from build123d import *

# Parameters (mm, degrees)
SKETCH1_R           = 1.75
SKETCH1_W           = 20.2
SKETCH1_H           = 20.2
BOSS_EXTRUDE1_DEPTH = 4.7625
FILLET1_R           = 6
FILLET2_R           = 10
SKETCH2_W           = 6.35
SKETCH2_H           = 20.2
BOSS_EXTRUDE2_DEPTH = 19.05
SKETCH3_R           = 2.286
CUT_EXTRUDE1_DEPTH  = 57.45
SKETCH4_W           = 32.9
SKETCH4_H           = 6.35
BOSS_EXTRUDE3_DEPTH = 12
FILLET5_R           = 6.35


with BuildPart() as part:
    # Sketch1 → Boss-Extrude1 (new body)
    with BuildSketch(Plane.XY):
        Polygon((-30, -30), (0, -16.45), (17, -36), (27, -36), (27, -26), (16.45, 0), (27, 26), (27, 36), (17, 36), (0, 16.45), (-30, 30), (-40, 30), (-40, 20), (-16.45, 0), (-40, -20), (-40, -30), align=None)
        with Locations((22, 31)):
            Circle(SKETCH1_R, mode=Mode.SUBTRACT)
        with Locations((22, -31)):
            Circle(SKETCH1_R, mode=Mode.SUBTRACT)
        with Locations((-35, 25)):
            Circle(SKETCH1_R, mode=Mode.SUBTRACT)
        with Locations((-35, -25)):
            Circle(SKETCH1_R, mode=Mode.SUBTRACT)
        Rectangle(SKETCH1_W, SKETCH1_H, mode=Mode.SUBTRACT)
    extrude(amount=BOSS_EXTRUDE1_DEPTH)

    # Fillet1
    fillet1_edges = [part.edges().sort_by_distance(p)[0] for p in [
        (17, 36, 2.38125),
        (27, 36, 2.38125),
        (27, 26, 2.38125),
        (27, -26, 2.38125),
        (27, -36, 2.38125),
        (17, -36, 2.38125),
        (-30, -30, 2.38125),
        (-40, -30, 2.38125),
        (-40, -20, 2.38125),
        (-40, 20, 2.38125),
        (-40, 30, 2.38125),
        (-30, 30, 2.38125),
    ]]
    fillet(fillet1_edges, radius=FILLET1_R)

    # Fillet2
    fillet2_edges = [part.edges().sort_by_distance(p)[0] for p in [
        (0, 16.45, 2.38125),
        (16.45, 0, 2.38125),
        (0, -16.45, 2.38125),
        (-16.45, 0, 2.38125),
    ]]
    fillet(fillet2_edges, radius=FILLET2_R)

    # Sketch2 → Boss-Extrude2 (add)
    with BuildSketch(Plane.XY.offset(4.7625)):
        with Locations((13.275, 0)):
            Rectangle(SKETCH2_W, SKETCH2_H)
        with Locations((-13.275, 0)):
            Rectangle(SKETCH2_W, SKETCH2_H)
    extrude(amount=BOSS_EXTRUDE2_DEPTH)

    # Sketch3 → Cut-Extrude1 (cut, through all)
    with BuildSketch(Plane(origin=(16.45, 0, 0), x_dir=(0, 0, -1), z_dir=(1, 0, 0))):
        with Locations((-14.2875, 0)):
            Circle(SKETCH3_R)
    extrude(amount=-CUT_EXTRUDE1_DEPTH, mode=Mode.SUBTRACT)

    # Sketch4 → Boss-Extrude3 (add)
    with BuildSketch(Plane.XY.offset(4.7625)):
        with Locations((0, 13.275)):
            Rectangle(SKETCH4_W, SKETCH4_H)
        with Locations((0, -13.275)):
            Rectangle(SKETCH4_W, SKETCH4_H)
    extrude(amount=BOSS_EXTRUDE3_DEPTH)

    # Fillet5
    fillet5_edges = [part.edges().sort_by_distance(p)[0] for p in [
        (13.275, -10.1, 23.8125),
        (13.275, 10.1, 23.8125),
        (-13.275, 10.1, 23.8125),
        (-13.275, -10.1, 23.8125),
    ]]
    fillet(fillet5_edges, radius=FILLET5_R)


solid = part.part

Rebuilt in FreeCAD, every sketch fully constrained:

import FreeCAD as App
import Part
import Sketcher
from FreeCAD import Vector


def edges_at(feature, points):
    """Names of the edges that pass closest to the given points."""
    edges = feature.Shape.Edges
    near = lambda p: min(range(len(edges)), key=lambda i: edges[i].distToShape(Part.Vertex(*p))[0])
    return sorted({f"Edge{near(p) + 1}" for p in points})


def add_polygon(sketch, points):
    """Adds a closed chain of lines whose ends are joined by coincident constraints."""
    first, n = sketch.GeometryCount, len(points)
    for a, b in zip(points, points[1:] + points[:1]):
        sketch.addGeometry(Part.LineSegment(App.Vector(*a, 0), App.Vector(*b, 0)), False)
    for i in range(n):
        sketch.addConstraint(Sketcher.Constraint("Coincident", first + i, 2, first + (i + 1) % n, 1))

doc = App.newDocument("Part")
params = doc.addObject("Spreadsheet::Sheet", "Params")
for row, (alias, value) in enumerate([
    ("sketch1_diameter", "3.5 mm"),
    ("sketch1_width", "10 mm"),
    ("sketch1_width2", "20.2 mm"),
    ("pad1_length", "4.7625 mm"),
    ("fillet_radius", "6 mm"),
    ("fillet2_radius", "10 mm"),
    ("sketch2_height", "20.2 mm"),
    ("sketch2_width", "6.35 mm"),
    ("pad2_length", "19.05 mm"),
    ("sketch4_width", "32.9 mm"),
    ("sketch4_height", "6.35 mm"),
    ("pad3_length", "12 mm"),
    ("fillet3_radius", "6.35 mm"),
], start=1):
    params.set(f"A{row}", alias)
    params.set(f"B{row}", "=" + value)
    params.setAlias(f"B{row}", alias)

body = doc.addObject("PartDesign::Body", "Body")

# Sketch on XY plane
sketch1 = body.newObject("Sketcher::SketchObject", "Sketch")
sketch1.AttachmentSupport = (doc.getObject("XY_Plane"), [""])
sketch1.MapMode = "FlatFace"
add_polygon(sketch1, [(-30, -30), (0, -16.45), (17, -36), (27, -36), (27, -26), (16.45, 0), (27, 26), (27, 36), (17, 36), (0, 16.45), (-30, 30), (-40, 30), (-40, 20), (-16.45, 0), (-40, -20), (-40, -30)])  # lines 0-15
sketch1.addGeometry(Part.Circle(Vector(-35, -25, 0), Vector(0, 0, 1), 1.75), False)  # 16
sketch1.addGeometry(Part.Circle(Vector(22, -31, 0), Vector(0, 0, 1), 1.75), False)  # 17
sketch1.addGeometry(Part.Circle(Vector(-35, 25, 0), Vector(0, 0, 1), 1.75), False)  # 18
add_polygon(sketch1, [(10.1, -10.1), (-10.1, -10.1), (-10.1, 10.1), (10.1, 10.1)])  # lines 19-22
sketch1.addGeometry(Part.Circle(Vector(22, 31, 0), Vector(0, 0, 1), 1.75), False)  # 23
sketch1.addConstraint(Sketcher.Constraint("Horizontal", 2))
sketch1.addConstraint(Sketcher.Constraint("Vertical", 3))
sketch1.addConstraint(Sketcher.Constraint("Vertical", 6))
sketch1.addConstraint(Sketcher.Constraint("Horizontal", 7))
sketch1.addConstraint(Sketcher.Constraint("Horizontal", 10))
sketch1.addConstraint(Sketcher.Constraint("Vertical", 11))
sketch1.addConstraint(Sketcher.Constraint("Vertical", 14))
sketch1.addConstraint(Sketcher.Constraint("Horizontal", 15))
sketch1.addConstraint(Sketcher.Constraint("Horizontal", 19))
sketch1.addConstraint(Sketcher.Constraint("Vertical", 20))
sketch1.addConstraint(Sketcher.Constraint("Horizontal", 21))
sketch1.addConstraint(Sketcher.Constraint("Vertical", 22))
sketch1.addConstraint(Sketcher.Constraint("Equal", 16, 17))
sketch1.addConstraint(Sketcher.Constraint("Equal", 17, 18))
sketch1.addConstraint(Sketcher.Constraint("Equal", 18, 23))
sketch1.addConstraint(Sketcher.Constraint("Symmetric", 0, 2, 8, 2, -1, 1))
sketch1.addConstraint(Sketcher.Constraint("Symmetric", 4, 2, 12, 2, -1, 1))
sketch1.addConstraint(Sketcher.Constraint("Symmetric", 19, 2, 21, 2, -1, 1))
sketch1.addConstraint(Sketcher.Constraint("Symmetric", 16, 3, 18, 3, -1))
sketch1.addConstraint(Sketcher.Constraint("Symmetric", 17, 3, 23, 3, -1))
sketch1.addConstraint(Sketcher.Constraint("Symmetric", 3, 2, 5, 2, -1))
sketch1.addConstraint(Sketcher.Constraint("Symmetric", 1, 2, 7, 2, -1))
sketch1.addConstraint(Sketcher.Constraint("Symmetric", 11, 2, 13, 2, -1))
sketch1.addConstraint(Sketcher.Constraint("Symmetric", 9, 2, 15, 2, -1))
sketch1.addConstraint(Sketcher.Constraint("PointOnObject", 0, 2, -2))
sketch1.addConstraint(Sketcher.Constraint("PointOnObject", 4, 2, -1))
sketch1.addConstraint(Sketcher.Constraint("Equal", 7, 10))
sketch1.addConstraint(Sketcher.Constraint("Equal", 15, 3))
sketch1.addConstraint(Sketcher.Constraint("Equal", 6, 11))
sketch1.addConstraint(Sketcher.Constraint("Equal", 21, 20))
sketch1.addConstraint(Sketcher.Constraint("Diameter", 16, 3.5))
sketch1.addConstraint(Sketcher.Constraint("DistanceX", 2, 1, 2, 2, 10.0))
sketch1.addConstraint(Sketcher.Constraint("DistanceX", 19, 2, 19, 1, 20.2))
sketch1.addConstraint(Sketcher.Constraint("DistanceX", 16, 3, -1, 1, 35.0))
sketch1.addConstraint(Sketcher.Constraint("DistanceY", 16, 3, -1, 1, 25.0))
sketch1.addConstraint(Sketcher.Constraint("DistanceX", -1, 1, 17, 3, 22.0))
sketch1.addConstraint(Sketcher.Constraint("DistanceY", 17, 3, -1, 1, 31.0))
sketch1.addConstraint(Sketcher.Constraint("DistanceX", -1, 1, 1, 2, 17.0))
sketch1.addConstraint(Sketcher.Constraint("DistanceY", 1, 2, -1, 1, 36.0))
sketch1.addConstraint(Sketcher.Constraint("DistanceX", 9, 2, -1, 1, 30.0))
sketch1.addConstraint(Sketcher.Constraint("DistanceY", -1, 1, 9, 2, 30.0))
sketch1.addConstraint(Sketcher.Constraint("DistanceY", 0, 2, 8, 2, 32.9))
sketch1.addConstraint(Sketcher.Constraint("DistanceX", -1, 1, 4, 2, 16.45))
sketch1.setExpression("Constraints[50]", "Params.sketch1_diameter")
sketch1.setExpression("Constraints[51]", "Params.sketch1_width")
sketch1.setExpression("Constraints[52]", "Params.sketch1_width2")
pad1 = body.newObject("PartDesign::Pad", "Pad")
pad1.Profile = sketch1
pad1.setExpression("Length", "Params.pad1_length")
doc.recompute()

fillet = body.newObject("PartDesign::Fillet", "Fillet")
fillet.Base = (pad1, edges_at(pad1, [
    (17, 36, 2.381),
    (27, 36, 2.381),
    (27, 26, 2.381),
    (27, -26, 2.381),
    (27, -36, 2.381),
    (17, -36, 2.381),
    (-30, -30, 2.381),
    (-40, -30, 2.381),
    (-40, -20, 2.381),
    (-40, 20, 2.381),
    (-40, 30, 2.381),
    (-30, 30, 2.381),
]))
fillet.setExpression("Radius", "Params.fillet_radius")
doc.recompute()

fillet2 = body.newObject("PartDesign::Fillet", "Fillet001")
fillet2.Base = (fillet, edges_at(fillet, [
    (0, 16.45, 2.381),
    (16.45, 0, 2.381),
    (0, -16.45, 2.381),
    (-16.45, 0, 2.381),
]))
fillet2.setExpression("Radius", "Params.fillet2_radius")

# Sketch on XY plane
sketch2 = body.newObject("Sketcher::SketchObject", "Sketch001")
sketch2.AttachmentSupport = (doc.getObject("XY_Plane"), [""])
sketch2.MapMode = "FlatFace"
sketch2.AttachmentOffset = App.Placement(Vector(0, 0, 4.7625), App.Rotation())
add_polygon(sketch2, [(10.1, 10.1), (10.1, -10.1), (16.45, -10.1), (16.45, 10.1)])  # lines 0-3
add_polygon(sketch2, [(-16.45, 10.1), (-16.45, -10.1), (-10.1, -10.1), (-10.1, 10.1)])  # lines 4-7
sketch2.addConstraint(Sketcher.Constraint("Vertical", 0))
sketch2.addConstraint(Sketcher.Constraint("Horizontal", 1))
sketch2.addConstraint(Sketcher.Constraint("Vertical", 2))
sketch2.addConstraint(Sketcher.Constraint("Horizontal", 3))
sketch2.addConstraint(Sketcher.Constraint("Vertical", 4))
sketch2.addConstraint(Sketcher.Constraint("Horizontal", 5))
sketch2.addConstraint(Sketcher.Constraint("Vertical", 6))
sketch2.addConstraint(Sketcher.Constraint("Horizontal", 7))
sketch2.addConstraint(Sketcher.Constraint("Symmetric", 2, 2, 4, 2, -1, 1))
sketch2.addConstraint(Sketcher.Constraint("Symmetric", 0, 2, 6, 2, -1, 1))
sketch2.addConstraint(Sketcher.Constraint("Horizontal", 1, 2, 4, 2))
sketch2.addConstraint(Sketcher.Constraint("DistanceY", 0, 2, 0, 1, 20.2))
sketch2.addConstraint(Sketcher.Constraint("DistanceX", 1, 1, 1, 2, 6.35))
sketch2.addConstraint(Sketcher.Constraint("DistanceX", -1, 1, 0, 2, 10.1))
sketch2.setExpression("Constraints[19]", "Params.sketch2_height")
sketch2.setExpression("Constraints[20]", "Params.sketch2_width")
pad2 = body.newObject("PartDesign::Pad", "Pad001")
pad2.Profile = sketch2
pad2.setExpression("Length", "Params.pad2_length")

# Sketch on YZ plane
sketch3 = body.newObject("Sketcher::SketchObject", "Sketch002")
sketch3.AttachmentSupport = (doc.getObject("YZ_Plane"), [""])
sketch3.MapMode = "FlatFace"
sketch3.AttachmentOffset = App.Placement(Vector(0, 0, 16.45), App.Rotation())
sketch3.addGeometry(Part.Circle(Vector(0, 14.2875, 0), Vector(0, 0, 1), 2.286), False)
sketch3.addConstraint(Sketcher.Constraint("PointOnObject", 0, 3, -2))
sketch3.addConstraint(Sketcher.Constraint("Diameter", 0, 4.572))
sketch3.addConstraint(Sketcher.Constraint("DistanceY", -1, 1, 0, 3, 14.2875))
pocket1 = body.newObject("PartDesign::Pocket", "Pocket")
pocket1.Profile = sketch3
pocket1.Type = "ThroughAll"

# Sketch on XY plane
sketch4 = body.newObject("Sketcher::SketchObject", "Sketch003")
sketch4.AttachmentSupport = (doc.getObject("XY_Plane"), [""])
sketch4.MapMode = "FlatFace"
sketch4.AttachmentOffset = App.Placement(Vector(0, 0, 4.7625), App.Rotation())
add_polygon(sketch4, [(-16.45, 16.45), (-16.45, 10.1), (16.45, 10.1), (16.45, 16.45)])  # lines 0-3
add_polygon(sketch4, [(-16.45, -10.1), (-16.45, -16.45), (16.45, -16.45), (16.45, -10.1)])  # lines 4-7
sketch4.addConstraint(Sketcher.Constraint("Vertical", 0))
sketch4.addConstraint(Sketcher.Constraint("Horizontal", 1))
sketch4.addConstraint(Sketcher.Constraint("Vertical", 2))
sketch4.addConstraint(Sketcher.Constraint("Horizontal", 3))
sketch4.addConstraint(Sketcher.Constraint("Vertical", 4))
sketch4.addConstraint(Sketcher.Constraint("Horizontal", 5))
sketch4.addConstraint(Sketcher.Constraint("Vertical", 6))
sketch4.addConstraint(Sketcher.Constraint("Horizontal", 7))
sketch4.addConstraint(Sketcher.Constraint("Symmetric", 2, 2, 4, 2, -1, 1))
sketch4.addConstraint(Sketcher.Constraint("Symmetric", 0, 2, 6, 2, -1, 1))
sketch4.addConstraint(Sketcher.Constraint("Vertical", 3, 2, 4, 2))
sketch4.addConstraint(Sketcher.Constraint("DistanceX", 1, 1, 1, 2, 32.9))
sketch4.addConstraint(Sketcher.Constraint("DistanceY", 0, 2, 0, 1, 6.35))
sketch4.addConstraint(Sketcher.Constraint("DistanceY", -1, 1, 0, 2, 10.1))
sketch4.setExpression("Constraints[19]", "Params.sketch4_width")
sketch4.setExpression("Constraints[20]", "Params.sketch4_height")
pad3 = body.newObject("PartDesign::Pad", "Pad002")
pad3.Profile = sketch4
pad3.setExpression("Length", "Params.pad3_length")
doc.recompute()

fillet3 = body.newObject("PartDesign::Fillet", "Fillet002")
fillet3.Base = (pad3, edges_at(pad3, [
    (13.275, -10.1, 23.812),
    (13.275, 10.1, 23.812),
    (-13.275, 10.1, 23.812),
    (-13.275, -10.1, 23.812),
]))
fillet3.setExpression("Radius", "Params.fillet3_radius")

doc.recompute()
